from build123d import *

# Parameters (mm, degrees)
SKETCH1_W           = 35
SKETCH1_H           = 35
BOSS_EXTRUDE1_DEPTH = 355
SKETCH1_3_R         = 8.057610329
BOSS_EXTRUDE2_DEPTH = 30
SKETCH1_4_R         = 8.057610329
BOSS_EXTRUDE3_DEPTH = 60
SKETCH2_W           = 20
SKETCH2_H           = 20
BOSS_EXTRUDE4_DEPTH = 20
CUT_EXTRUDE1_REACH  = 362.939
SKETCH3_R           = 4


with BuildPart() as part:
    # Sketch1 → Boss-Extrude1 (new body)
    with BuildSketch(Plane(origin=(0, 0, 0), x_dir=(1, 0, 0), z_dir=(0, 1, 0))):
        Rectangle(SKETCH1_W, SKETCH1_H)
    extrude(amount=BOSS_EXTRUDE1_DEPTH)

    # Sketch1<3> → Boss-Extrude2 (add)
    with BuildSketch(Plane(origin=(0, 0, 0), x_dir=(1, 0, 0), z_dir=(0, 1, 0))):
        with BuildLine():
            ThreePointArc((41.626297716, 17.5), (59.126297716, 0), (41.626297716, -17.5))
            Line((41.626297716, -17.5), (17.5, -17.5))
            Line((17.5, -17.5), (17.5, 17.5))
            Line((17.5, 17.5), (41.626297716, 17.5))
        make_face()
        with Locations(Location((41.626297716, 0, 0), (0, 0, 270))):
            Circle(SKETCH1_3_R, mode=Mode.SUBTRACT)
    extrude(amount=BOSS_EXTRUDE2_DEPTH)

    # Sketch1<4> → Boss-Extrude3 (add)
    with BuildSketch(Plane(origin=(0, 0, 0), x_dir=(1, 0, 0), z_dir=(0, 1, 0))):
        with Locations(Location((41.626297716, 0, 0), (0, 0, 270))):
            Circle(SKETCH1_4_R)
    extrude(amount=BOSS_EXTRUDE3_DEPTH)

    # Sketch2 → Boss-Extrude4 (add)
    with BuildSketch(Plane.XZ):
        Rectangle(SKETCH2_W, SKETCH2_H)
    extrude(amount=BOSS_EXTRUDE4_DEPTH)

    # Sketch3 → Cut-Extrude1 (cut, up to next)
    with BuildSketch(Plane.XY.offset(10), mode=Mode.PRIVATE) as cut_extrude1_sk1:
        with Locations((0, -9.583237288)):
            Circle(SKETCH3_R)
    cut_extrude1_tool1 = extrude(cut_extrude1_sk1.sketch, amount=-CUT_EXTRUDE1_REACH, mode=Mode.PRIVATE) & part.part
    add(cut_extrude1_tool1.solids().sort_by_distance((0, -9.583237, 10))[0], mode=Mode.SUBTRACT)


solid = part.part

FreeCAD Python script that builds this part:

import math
import FreeCAD as App
import Part
import Sketcher


def add_polygon(sketch, points):
    """Adds a closed chain of lines whose ends are joined by coincident constraints."""
    first, n = sketch.GeometryCount, len(points)
    for a, b in zip(points, points[1:] + points[:1]):
        sketch.addGeometry(Part.LineSegment(App.Vector(*a, 0), App.Vector(*b, 0)), False)
    for i in range(n):
        sketch.addConstraint(Sketcher.Constraint("Coincident", first + i, 2, first + (i + 1) % n, 1))

doc = App.newDocument("Part")
body = doc.addObject("PartDesign::Body", "Body")

# Sketch on XZ plane
sketch1 = doc.addObject("Sketcher::SketchObject", "Sketch")
body.addObject(sketch1)
sketch1.AttachmentSupport = (doc.XZ_Plane, [""])
sketch1.MapMode = "FlatFace"
add_polygon(sketch1, [(-18, -18), (-18, 18), (18, 18), (18, -18)])  # lines 0-3
sketch1.addConstraint(Sketcher.Constraint("Vertical", 0))
sketch1.addConstraint(Sketcher.Constraint("Horizontal", 1))
sketch1.addConstraint(Sketcher.Constraint("Vertical", 2))
sketch1.addConstraint(Sketcher.Constraint("Horizontal", 3))
sketch1.addConstraint(Sketcher.Constraint("Symmetric", 0, 2, 2, 2, -1, 1))
sketch1.addConstraint(Sketcher.Constraint("Equal", 3, 0))
sketch1.addConstraint(Sketcher.Constraint("DistanceX", 1, 1, 1, 2, 35.0))
pad1 = doc.addObject("PartDesign::Pad", "Pad")
body.addObject(pad1)
pad1.Profile = sketch1
pad1.Length = 355
pad1.Reversed = True

# Sketch on XZ plane
sketch2 = doc.addObject("Sketcher::SketchObject", "Sketch001")
body.addObject(sketch2)
sketch2.AttachmentSupport = (doc.XZ_Plane, [""])
sketch2.MapMode = "FlatFace"
sketch2.addGeometry(Part.ArcOfCircle(Part.Circle(App.Vector(42, 0, 0), App.Vector(0, 0, 1), 18), math.radians(-90), math.radians(90)), False)
sketch2.addGeometry(Part.LineSegment(App.Vector(42, -18, 0), App.Vector(18, -18, 0)), False)
sketch2.addGeometry(Part.LineSegment(App.Vector(18, -18, 0), App.Vector(18, 18, 0)), False)
sketch2.addGeometry(Part.LineSegment(App.Vector(18, 18, 0), App.Vector(42, 18, 0)), False)
sketch2.addGeometry(Part.Circle(App.Vector(42, 0, 0), App.Vector(0, 0, 1), 8), False)
sketch2.addConstraint(Sketcher.Constraint("Tangent", 0, 1, 1, 1))
sketch2.addConstraint(Sketcher.Constraint("Coincident", 1, 2, 2, 1))
sketch2.addConstraint(Sketcher.Constraint("Coincident", 2, 2, 3, 1))
sketch2.addConstraint(Sketcher.Constraint("Tangent", 3, 2, 0, 2))
sketch2.addConstraint(Sketcher.Constraint("Horizontal", 1))
sketch2.addConstraint(Sketcher.Constraint("Vertical", 2))
sketch2.addConstraint(Sketcher.Constraint("Horizontal", 3))
sketch2.addConstraint(Sketcher.Constraint("Coincident", 4, 3, 0, 3))
sketch2.addConstraint(Sketcher.Constraint("PointOnObject", 0, 3, -1))
sketch2.addConstraint(Sketcher.Constraint("Radius", 0, 17.5))
sketch2.addConstraint(Sketcher.Constraint("DistanceX", -1, 1, 1, 2, 17.5))
sketch2.addConstraint(Sketcher.Constraint("Diameter", 4, 16.115221))
sketch2.addConstraint(Sketcher.Constraint("DistanceX", 1, 2, 1, 1, 24.126298))
pad2 = doc.addObject("PartDesign::Pad", "Pad001")
body.addObject(pad2)
pad2.Profile = sketch2
pad2.Length = 30
pad2.Reversed = True

# Sketch on XZ plane
sketch3 = doc.addObject("Sketcher::SketchObject", "Sketch002")
body.addObject(sketch3)
sketch3.AttachmentSupport = (doc.XZ_Plane, [""])
sketch3.MapMode = "FlatFace"
sketch3.addGeometry(Part.Circle(App.Vector(42, 0, 0), App.Vector(0, 0, 1), 8), False)
sketch3.addConstraint(Sketcher.Constraint("PointOnObject", 0, 3, -1))
sketch3.addConstraint(Sketcher.Constraint("Diameter", 0, 16.115221))
sketch3.addConstraint(Sketcher.Constraint("DistanceX", -1, 1, 0, 3, 41.626298))
pad3 = doc.addObject("PartDesign::Pad", "Pad002")
body.addObject(pad3)
pad3.Profile = sketch3
pad3.Length = 60
pad3.Reversed = True

# Sketch on XZ plane
sketch4 = doc.addObject("Sketcher::SketchObject", "Sketch003")
body.addObject(sketch4)
sketch4.AttachmentSupport = (doc.XZ_Plane, [""])
sketch4.MapMode = "FlatFace"
add_polygon(sketch4, [(-10, 10), (-10, -10), (10, -10), (10, 10)])  # lines 0-3
sketch4.addConstraint(Sketcher.Constraint("Vertical", 0))
sketch4.addConstraint(Sketcher.Constraint("Horizontal", 1))
sketch4.addConstraint(Sketcher.Constraint("Vertical", 2))
sketch4.addConstraint(Sketcher.Constraint("Horizontal", 3))
sketch4.addConstraint(Sketcher.Constraint("Symmetric", 0, 2, 2, 2, -1, 1))
sketch4.addConstraint(Sketcher.Constraint("Equal", 3, 0))
sketch4.addConstraint(Sketcher.Constraint("DistanceX", 1, 1, 1, 2, 20.0))
pad4 = doc.addObject("PartDesign::Pad", "Pad003")
body.addObject(pad4)
pad4.Profile = sketch4
pad4.Length = 20

# Sketch on XY plane
sketch5 = doc.addObject("Sketcher::SketchObject", "Sketch004")
body.addObject(sketch5)
sketch5.AttachmentSupport = (doc.XY_Plane, [""])
sketch5.MapMode = "FlatFace"
sketch5.AttachmentOffset = App.Placement(App.Vector(0, 0, 10), App.Rotation())
sketch5.addGeometry(Part.Circle(App.Vector(0, -9.6, 0), App.Vector(0, 0, 1), 4), False)
sketch5.addConstraint(Sketcher.Constraint("PointOnObject", 0, 3, -2))
sketch5.addConstraint(Sketcher.Constraint("Diameter", 0, 8.0))
sketch5.addConstraint(Sketcher.Constraint("DistanceY", 0, 3, -1, 1, 9.583237))
pocket1 = doc.addObject("PartDesign::Pocket", "Pocket")
body.addObject(pocket1)
pocket1.Profile = sketch5
pocket1.Type = "UpToFirst"

doc.recompute()
